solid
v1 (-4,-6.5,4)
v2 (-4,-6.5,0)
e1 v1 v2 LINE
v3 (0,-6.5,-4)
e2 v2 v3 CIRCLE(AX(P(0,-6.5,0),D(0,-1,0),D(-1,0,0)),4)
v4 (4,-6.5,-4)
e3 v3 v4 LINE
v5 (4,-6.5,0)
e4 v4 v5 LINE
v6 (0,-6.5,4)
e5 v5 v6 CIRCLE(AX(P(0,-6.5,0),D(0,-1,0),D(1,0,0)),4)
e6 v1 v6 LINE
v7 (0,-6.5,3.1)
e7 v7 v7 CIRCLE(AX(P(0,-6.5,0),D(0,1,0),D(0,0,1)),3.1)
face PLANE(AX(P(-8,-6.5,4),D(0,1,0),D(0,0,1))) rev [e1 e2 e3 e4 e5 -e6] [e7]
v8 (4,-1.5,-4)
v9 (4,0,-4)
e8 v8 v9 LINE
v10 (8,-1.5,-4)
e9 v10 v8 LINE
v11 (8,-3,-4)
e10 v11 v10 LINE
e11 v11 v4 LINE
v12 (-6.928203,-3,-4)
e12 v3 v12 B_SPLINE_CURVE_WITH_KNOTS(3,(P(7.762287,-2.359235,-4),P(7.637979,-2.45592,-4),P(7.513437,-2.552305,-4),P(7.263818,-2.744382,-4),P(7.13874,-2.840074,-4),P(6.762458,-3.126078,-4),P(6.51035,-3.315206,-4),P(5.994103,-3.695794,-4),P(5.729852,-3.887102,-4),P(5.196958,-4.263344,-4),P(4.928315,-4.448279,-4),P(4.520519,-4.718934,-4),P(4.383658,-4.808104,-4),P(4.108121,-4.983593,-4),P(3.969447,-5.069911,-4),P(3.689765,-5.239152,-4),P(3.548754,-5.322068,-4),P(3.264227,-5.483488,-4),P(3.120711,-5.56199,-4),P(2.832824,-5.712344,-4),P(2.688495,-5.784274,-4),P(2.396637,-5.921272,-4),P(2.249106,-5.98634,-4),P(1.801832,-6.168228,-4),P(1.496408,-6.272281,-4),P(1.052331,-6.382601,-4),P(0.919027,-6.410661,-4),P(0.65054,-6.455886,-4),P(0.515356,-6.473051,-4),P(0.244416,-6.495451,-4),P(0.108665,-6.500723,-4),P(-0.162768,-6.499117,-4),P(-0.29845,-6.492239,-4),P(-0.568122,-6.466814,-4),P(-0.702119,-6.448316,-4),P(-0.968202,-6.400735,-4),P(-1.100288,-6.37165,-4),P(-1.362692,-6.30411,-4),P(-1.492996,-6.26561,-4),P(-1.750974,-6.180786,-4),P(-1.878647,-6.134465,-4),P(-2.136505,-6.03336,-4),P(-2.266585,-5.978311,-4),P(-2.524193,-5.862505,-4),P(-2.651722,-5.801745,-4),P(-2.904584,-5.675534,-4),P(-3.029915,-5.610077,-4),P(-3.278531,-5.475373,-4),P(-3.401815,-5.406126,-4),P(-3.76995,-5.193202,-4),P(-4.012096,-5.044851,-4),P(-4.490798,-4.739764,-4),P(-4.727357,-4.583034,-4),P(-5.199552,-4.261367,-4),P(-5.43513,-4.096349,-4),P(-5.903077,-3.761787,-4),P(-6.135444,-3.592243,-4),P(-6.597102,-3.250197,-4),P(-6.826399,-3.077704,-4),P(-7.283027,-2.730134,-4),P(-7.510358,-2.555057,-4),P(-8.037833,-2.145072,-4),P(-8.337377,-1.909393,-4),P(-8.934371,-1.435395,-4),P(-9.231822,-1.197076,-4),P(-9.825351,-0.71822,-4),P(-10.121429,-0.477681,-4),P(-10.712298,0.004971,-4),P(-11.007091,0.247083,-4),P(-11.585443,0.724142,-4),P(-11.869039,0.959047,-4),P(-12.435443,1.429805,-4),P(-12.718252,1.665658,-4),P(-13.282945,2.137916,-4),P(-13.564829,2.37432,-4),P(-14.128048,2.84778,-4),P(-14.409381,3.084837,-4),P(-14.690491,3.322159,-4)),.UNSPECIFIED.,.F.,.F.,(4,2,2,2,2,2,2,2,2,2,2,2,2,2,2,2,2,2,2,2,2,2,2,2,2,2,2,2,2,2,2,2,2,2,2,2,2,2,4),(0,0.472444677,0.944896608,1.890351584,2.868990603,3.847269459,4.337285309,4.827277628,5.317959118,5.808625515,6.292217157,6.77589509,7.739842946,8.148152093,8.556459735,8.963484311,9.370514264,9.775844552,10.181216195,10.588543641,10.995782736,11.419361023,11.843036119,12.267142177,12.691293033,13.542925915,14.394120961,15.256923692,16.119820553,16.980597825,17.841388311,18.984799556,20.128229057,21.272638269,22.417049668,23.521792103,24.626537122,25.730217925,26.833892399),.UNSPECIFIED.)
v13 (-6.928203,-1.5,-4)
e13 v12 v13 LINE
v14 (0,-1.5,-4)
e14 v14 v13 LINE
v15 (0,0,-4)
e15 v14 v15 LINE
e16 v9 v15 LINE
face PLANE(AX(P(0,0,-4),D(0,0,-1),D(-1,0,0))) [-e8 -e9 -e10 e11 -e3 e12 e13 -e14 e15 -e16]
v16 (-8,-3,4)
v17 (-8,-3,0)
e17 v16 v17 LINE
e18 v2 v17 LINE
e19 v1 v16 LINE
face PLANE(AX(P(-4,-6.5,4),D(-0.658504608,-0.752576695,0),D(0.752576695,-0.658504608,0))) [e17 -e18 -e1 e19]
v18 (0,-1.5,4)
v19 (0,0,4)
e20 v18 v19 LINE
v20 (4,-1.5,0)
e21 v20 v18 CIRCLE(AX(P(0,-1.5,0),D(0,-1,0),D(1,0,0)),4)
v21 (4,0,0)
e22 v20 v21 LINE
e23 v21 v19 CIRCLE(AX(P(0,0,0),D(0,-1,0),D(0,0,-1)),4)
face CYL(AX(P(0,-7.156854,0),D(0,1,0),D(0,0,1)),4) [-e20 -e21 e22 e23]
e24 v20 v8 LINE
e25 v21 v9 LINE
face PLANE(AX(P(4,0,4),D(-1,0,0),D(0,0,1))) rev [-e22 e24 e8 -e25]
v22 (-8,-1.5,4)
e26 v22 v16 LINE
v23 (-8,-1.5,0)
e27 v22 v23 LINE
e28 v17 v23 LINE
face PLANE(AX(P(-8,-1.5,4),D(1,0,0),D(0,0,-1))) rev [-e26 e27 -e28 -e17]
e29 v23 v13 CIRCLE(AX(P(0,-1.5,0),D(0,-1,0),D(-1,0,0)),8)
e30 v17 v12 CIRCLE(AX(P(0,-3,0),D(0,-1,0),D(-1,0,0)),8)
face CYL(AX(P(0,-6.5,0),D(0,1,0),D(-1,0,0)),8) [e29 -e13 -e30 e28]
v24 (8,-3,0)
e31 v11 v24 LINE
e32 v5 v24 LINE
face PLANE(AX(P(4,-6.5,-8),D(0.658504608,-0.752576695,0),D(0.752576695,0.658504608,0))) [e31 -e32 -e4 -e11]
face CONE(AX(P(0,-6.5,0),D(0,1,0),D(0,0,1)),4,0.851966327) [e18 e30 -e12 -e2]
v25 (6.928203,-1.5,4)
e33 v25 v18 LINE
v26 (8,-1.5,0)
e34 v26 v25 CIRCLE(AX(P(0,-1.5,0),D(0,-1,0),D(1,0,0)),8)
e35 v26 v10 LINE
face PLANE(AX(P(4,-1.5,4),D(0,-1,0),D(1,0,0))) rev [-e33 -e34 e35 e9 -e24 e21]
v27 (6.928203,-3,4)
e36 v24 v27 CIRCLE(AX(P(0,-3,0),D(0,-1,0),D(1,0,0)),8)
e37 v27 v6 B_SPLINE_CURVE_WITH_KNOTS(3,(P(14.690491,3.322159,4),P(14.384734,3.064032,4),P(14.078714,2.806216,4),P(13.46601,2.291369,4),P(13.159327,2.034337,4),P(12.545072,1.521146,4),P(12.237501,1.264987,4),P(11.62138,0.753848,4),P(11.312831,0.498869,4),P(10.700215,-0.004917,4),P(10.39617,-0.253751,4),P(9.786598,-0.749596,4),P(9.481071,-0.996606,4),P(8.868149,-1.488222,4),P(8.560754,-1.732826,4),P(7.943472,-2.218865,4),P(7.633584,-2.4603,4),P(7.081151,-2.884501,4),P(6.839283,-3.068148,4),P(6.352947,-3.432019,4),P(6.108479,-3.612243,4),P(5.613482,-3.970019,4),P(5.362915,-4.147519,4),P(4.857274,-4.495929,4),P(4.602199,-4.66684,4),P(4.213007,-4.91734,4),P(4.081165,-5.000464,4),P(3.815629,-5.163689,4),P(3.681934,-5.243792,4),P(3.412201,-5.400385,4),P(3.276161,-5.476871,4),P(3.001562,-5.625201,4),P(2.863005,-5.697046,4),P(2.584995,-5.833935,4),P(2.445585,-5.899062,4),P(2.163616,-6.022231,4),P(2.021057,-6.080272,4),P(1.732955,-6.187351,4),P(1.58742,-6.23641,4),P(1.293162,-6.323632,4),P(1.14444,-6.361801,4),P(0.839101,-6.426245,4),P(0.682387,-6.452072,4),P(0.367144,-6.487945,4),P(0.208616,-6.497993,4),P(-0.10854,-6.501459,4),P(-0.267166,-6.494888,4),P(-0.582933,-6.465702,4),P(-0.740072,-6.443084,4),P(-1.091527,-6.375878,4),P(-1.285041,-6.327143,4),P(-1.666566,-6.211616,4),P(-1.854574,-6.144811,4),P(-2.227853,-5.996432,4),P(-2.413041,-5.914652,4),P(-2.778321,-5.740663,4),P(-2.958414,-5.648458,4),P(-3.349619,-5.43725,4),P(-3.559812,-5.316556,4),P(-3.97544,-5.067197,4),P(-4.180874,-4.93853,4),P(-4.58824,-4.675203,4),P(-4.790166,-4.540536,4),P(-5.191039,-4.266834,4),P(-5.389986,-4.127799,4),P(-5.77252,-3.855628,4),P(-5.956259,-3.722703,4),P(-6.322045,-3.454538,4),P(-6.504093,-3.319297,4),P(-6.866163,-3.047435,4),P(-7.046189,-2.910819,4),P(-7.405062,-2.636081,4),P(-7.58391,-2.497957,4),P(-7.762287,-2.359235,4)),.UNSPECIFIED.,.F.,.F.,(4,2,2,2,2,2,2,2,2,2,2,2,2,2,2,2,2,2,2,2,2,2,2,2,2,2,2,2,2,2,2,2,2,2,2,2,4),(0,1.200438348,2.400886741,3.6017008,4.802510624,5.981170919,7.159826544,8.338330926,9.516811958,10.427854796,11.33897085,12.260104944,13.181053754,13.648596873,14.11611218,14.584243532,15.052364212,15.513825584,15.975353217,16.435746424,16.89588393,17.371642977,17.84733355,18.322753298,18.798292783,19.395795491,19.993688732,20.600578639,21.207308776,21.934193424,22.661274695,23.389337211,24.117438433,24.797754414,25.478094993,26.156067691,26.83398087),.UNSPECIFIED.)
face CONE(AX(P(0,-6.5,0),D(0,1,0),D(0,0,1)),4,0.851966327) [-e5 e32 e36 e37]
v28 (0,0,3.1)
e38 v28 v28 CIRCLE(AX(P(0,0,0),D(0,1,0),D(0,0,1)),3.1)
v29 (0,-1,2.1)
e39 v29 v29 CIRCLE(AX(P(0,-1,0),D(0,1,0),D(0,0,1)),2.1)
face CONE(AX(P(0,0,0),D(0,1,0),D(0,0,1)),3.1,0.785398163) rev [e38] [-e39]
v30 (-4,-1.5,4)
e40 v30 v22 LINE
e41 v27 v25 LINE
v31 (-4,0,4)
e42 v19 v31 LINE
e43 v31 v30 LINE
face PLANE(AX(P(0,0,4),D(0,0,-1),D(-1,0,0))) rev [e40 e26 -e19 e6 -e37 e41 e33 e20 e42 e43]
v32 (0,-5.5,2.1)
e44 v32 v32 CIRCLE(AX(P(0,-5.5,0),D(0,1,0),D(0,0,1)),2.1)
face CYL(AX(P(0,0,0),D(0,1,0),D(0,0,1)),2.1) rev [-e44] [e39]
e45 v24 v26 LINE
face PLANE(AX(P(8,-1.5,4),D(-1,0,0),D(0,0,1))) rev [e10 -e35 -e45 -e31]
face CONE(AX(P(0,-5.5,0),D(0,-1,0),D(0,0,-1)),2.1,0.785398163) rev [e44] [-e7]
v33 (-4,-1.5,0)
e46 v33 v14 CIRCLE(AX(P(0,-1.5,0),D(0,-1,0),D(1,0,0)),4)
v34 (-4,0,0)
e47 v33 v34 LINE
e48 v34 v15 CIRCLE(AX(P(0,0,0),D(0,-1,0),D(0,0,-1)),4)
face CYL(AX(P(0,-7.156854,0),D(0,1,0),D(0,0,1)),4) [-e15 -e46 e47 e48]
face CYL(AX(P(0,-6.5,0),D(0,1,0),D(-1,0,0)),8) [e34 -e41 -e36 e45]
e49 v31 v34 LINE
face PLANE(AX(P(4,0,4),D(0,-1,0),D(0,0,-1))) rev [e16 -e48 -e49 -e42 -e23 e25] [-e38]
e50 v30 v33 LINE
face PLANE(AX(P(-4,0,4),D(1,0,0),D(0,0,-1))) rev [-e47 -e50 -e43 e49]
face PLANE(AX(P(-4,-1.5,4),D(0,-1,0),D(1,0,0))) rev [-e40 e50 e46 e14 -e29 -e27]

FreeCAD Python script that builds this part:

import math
import FreeCAD as App
import Part
import Sketcher
from FreeCAD import Vector

doc = App.newDocument("Part")
body = doc.addObject("PartDesign::Body", "Body")

# Sketch on XY plane
sketch1 = body.newObject("Sketcher::SketchObject", "Sketch")
sketch1.AttachmentSupport = (doc.getObject("XY_Plane"), [""])
sketch1.MapMode = "FlatFace"
sketch1.addGeometry([
    Part.LineSegment(Vector(4, 0, 0), Vector(-4, 0, 0)),  # 0
    Part.LineSegment(Vector(-4, 0, 0), Vector(-4, -1.5, 0)),  # 1
    Part.LineSegment(Vector(-4, -1.5, 0), Vector(-8, -1.5, 0)),  # 2
    Part.LineSegment(Vector(-8, -1.5, 0), Vector(-8, -6.5, 0)),  # 3
    Part.LineSegment(Vector(-8, -6.5, 0), Vector(8, -6.5, 0)),  # 4
    Part.LineSegment(Vector(8, -6.5, 0), Vector(8, -1.5, 0)),  # 5
    Part.LineSegment(Vector(8, -1.5, 0), Vector(4, -1.5, 0)),  # 6
    Part.LineSegment(Vector(4, -1.5, 0), Vector(4, 0, 0)),  # 7
], False)
sketch1.addConstraint([
    Sketcher.Constraint("Coincident", 0, 2, 1, 1),
    Sketcher.Constraint("Coincident", 1, 2, 2, 1),
    Sketcher.Constraint("Coincident", 2, 2, 3, 1),
    Sketcher.Constraint("Coincident", 3, 2, 4, 1),
    Sketcher.Constraint("Coincident", 4, 2, 5, 1),
    Sketcher.Constraint("Coincident", 5, 2, 6, 1),
    Sketcher.Constraint("Coincident", 6, 2, 7, 1),
    Sketcher.Constraint("Coincident", 7, 2, 0, 1),
    Sketcher.Constraint("Horizontal", 0),
    Sketcher.Constraint("Vertical", 1),
    Sketcher.Constraint("Horizontal", 2),
    Sketcher.Constraint("Vertical", 3),
    Sketcher.Constraint("Horizontal", 4),
    Sketcher.Constraint("Vertical", 5),
    Sketcher.Constraint("Horizontal", 6),
    Sketcher.Constraint("Vertical", 7),
    Sketcher.Constraint("Symmetric", 0, 2, 7, 2, -1, 1),
    Sketcher.Constraint("Symmetric", 2, 2, 5, 2, -2),
    Sketcher.Constraint("DistanceX", 0, 2, 0, 1, 8.0),
    Sketcher.Constraint("DistanceX", 2, 2, 2, 1, 4.0),
    Sketcher.Constraint("DistanceY", 3, 2, 3, 1, 5.0),
    Sketcher.Constraint("DistanceY", 1, 2, 1, 1, 1.5),
])
pad1 = body.newObject("PartDesign::Pad", "Pad")
pad1.Profile = sketch1
pad1.Length = 8
pad1.Midplane = True

# Sketch on YZ plane
sketch2 = body.newObject("Sketcher::SketchObject", "Sketch001")
sketch2.AttachmentSupport = (doc.getObject("YZ_Plane"), [""])
sketch2.MapMode = "FlatFace"
sketch2.addGeometry([
    Part.LineSegment(Vector(-6.5, 0, 0), Vector(0, 0, 0)),  # 0
    Part.LineSegment(Vector(0, 0, 0), Vector(0, 3.1, 0)),  # 1
    Part.LineSegment(Vector(0, 3.1, 0), Vector(-1, 2.1, 0)),  # 2
    Part.LineSegment(Vector(-1, 2.1, 0), Vector(-5.5, 2.1, 0)),  # 3
    Part.LineSegment(Vector(-5.5, 2.1, 0), Vector(-6.5, 3.1, 0)),  # 4
    Part.LineSegment(Vector(-6.5, 3.1, 0), Vector(-6.5, 0, 0)),  # 5
], False)
sketch2.addConstraint([
    Sketcher.Constraint("Coincident", 0, 2, 1, 1),
    Sketcher.Constraint("Coincident", 1, 2, 2, 1),
    Sketcher.Constraint("Coincident", 2, 2, 3, 1),
    Sketcher.Constraint("Coincident", 3, 2, 4, 1),
    Sketcher.Constraint("Coincident", 4, 2, 5, 1),
    Sketcher.Constraint("Coincident", 5, 2, 0, 1),
    Sketcher.Constraint("Horizontal", 0),
    Sketcher.Constraint("Vertical", 1),
    Sketcher.Constraint("Horizontal", 3),
    Sketcher.Constraint("Vertical", 5),
    Sketcher.Constraint("Coincident", 0, 2, -1, 1),
    Sketcher.Constraint("Perpendicular", 2, 4),
    Sketcher.Constraint("Horizontal", 1, 2, 4, 2),
    Sketcher.Constraint("Equal", 2, 4),
    Sketcher.Constraint("DistanceX", 0, 1, 0, 2, 6.5),
    Sketcher.Constraint("DistanceX", 3, 2, 3, 1, 4.5),
    Sketcher.Constraint("DistanceY", 1, 1, 1, 2, 3.1),
])
groove = body.newObject("PartDesign::Groove", "Groove")
groove.Profile = sketch2
groove.ReferenceAxis = (sketch2, ["H_Axis"])
groove.Angle = 360

# Sketch on XZ plane
sketch3 = body.newObject("Sketcher::SketchObject", "Sketch002")
sketch3.AttachmentSupport = (doc.getObject("XZ_Plane"), [""])
sketch3.MapMode = "FlatFace"
sketch3.addGeometry([
    Part.LineSegment(Vector(-4, -4, 0), Vector(-4, 0, 0)),  # 0
    Part.ArcOfCircle(Part.Circle(Vector(0, 0, 0), Vector(0, 0, 1), 4), math.radians(180), math.radians(270)),  # 1
    Part.LineSegment(Vector(0, -4, 0), Vector(-4, -4, 0)),  # 2
    Part.LineSegment(Vector(0, 4, 0), Vector(4, 4, 0)),  # 3
    Part.LineSegment(Vector(4, 4, 0), Vector(4, 0, 0)),  # 4
    Part.ArcOfCircle(Part.Circle(Vector(0, 0, 0), Vector(0, 0, 1), 4), math.radians(0), math.radians(90)),  # 5
], False)
sketch3.addConstraint([
    Sketcher.Constraint("Tangent", 0, 2, 1, 1),
    Sketcher.Constraint("Tangent", 1, 2, 2, 1),
    Sketcher.Constraint("Coincident", 2, 2, 0, 1),
    Sketcher.Constraint("Coincident", 3, 2, 4, 1),
    Sketcher.Constraint("Tangent", 4, 2, 5, 1),
    Sketcher.Constraint("Tangent", 5, 2, 3, 1),
    Sketcher.Constraint("Vertical", 0),
    Sketcher.Constraint("Horizontal", 2),
    Sketcher.Constraint("Horizontal", 3),
    Sketcher.Constraint("Vertical", 4),
    Sketcher.Constraint("Coincident", 1, 3, -1, 1),
    Sketcher.Constraint("Coincident", 5, 3, -1, 1),
    Sketcher.Constraint("Equal", 1, 5),
    Sketcher.Constraint("Radius", 1, 4.0),
])
pocket1 = body.newObject("PartDesign::Pocket", "Pocket")
pocket1.Profile = sketch3
pocket1.Length = 1.5
pocket1.Reversed = True

# Sketch on XZ plane
sketch4 = body.newObject("Sketcher::SketchObject", "Sketch003")
sketch4.AttachmentSupport = (doc.getObject("XZ_Plane"), [""])
sketch4.MapMode = "FlatFace"
sketch4.AttachmentOffset = App.Placement(Vector(0, 0, 1.5), App.Rotation())
sketch4.addGeometry([
    Part.LineSegment(Vector(-8, -4, 0), Vector(-8, 0, 0)),  # 0
    Part.ArcOfCircle(Part.Circle(Vector(0, 0, 0), Vector(0, 0, 1), 8), math.radians(-180), math.radians(-150)),  # 1
    Part.LineSegment(Vector(-6.928203, -4, 0), Vector(-8, -4, 0)),  # 2
    Part.LineSegment(Vector(8, 4, 0), Vector(8, 0, 0)),  # 3
    Part.ArcOfCircle(Part.Circle(Vector(0, 0, 0), Vector(0, 0, 1), 8), math.radians(0), math.radians(30)),  # 4
    Part.LineSegment(Vector(6.928203, 4, 0), Vector(8, 4, 0)),  # 5
], False)
sketch4.addConstraint([
    Sketcher.Constraint("Tangent", 0, 2, 1, 1),
    Sketcher.Constraint("Coincident", 1, 2, 2, 1),
    Sketcher.Constraint("Coincident", 2, 2, 0, 1),
    Sketcher.Constraint("Tangent", 3, 2, 4, 1),
    Sketcher.Constraint("Coincident", 4, 2, 5, 1),
    Sketcher.Constraint("Coincident", 5, 2, 3, 1),
    Sketcher.Constraint("Vertical", 0),
    Sketcher.Constraint("Horizontal", 2),
    Sketcher.Constraint("Vertical", 3),
    Sketcher.Constraint("Horizontal", 5),
    Sketcher.Constraint("Coincident", 1, 3, -1, 1),
    Sketcher.Constraint("Coincident", 4, 3, -1, 1),
    Sketcher.Constraint("Equal", 1, 4),
    Sketcher.Constraint("Equal", 2, 5),
    Sketcher.Constraint("Radius", 1, 8.0),
    Sketcher.Constraint("DistanceY", 0, 1, 0, 2, 4.0),
])
pocket2 = body.newObject("PartDesign::Pocket", "Pocket001")
pocket2.Profile = sketch4
pocket2.Type = "ThroughAll"
pocket2.Reversed = True

# Sketch on XY plane
sketch5 = body.newObject("Sketcher::SketchObject", "Sketch004")
sketch5.AttachmentSupport = (doc.getObject("XY_Plane"), [""])
sketch5.MapMode = "FlatFace"
sketch5.AttachmentOffset = App.Placement(Vector(0, 0, 4), App.Rotation())
sketch5.addGeometry([
    Part.LineSegment(Vector(-8, -3, 0), Vector(-8, -6.5, 0)),
    Part.LineSegment(Vector(-8, -6.5, 0), Vector(-4, -6.5, 0)),
    Part.LineSegment(Vector(-4, -6.5, 0), Vector(-8, -3, 0)),
], False)
sketch5.addConstraint([
    Sketcher.Constraint("Coincident", 0, 2, 1, 1),
    Sketcher.Constraint("Coincident", 1, 2, 2, 1),
    Sketcher.Constraint("Coincident", 2, 2, 0, 1),
    Sketcher.Constraint("Vertical", 0),
    Sketcher.Constraint("Horizontal", 1),
    Sketcher.Constraint("DistanceX", 1, 1, 1, 2, 4.0),
    Sketcher.Constraint("DistanceY", 0, 2, 0, 1, 3.5),
    Sketcher.Constraint("DistanceX", 0, 2, -1, 1, 8.0),
    Sketcher.Constraint("DistanceY", 2, 2, -1, 1, 3.0),
])

# Sketch on XZ plane
sketch6 = body.newObject("Sketcher::SketchObject", "Sketch005")
sketch6.AttachmentSupport = (doc.getObject("XZ_Plane"), [""])
sketch6.MapMode = "FlatFace"
sketch6.AttachmentOffset = App.Placement(Vector(0, 0, 6.5), App.Rotation())
sketch6.addGeometry([
    Part.LineSegment(Vector(0, 8, 0), Vector(-8, 8, 0)),  # 0
    Part.LineSegment(Vector(-8, 8, 0), Vector(-8, 0, 0)),  # 1
    Part.ArcOfCircle(Part.Circle(Vector(0, 0, 0), Vector(0, 0, 1), 8), math.radians(-180), math.radians(-90)),  # 2
    Part.LineSegment(Vector(0, -8, 0), Vector(8, -8, 0)),  # 3
    Part.LineSegment(Vector(8, -8, 0), Vector(8, 0, 0)),  # 4
    Part.ArcOfCircle(Part.Circle(Vector(0, 0, 0), Vector(0, 0, 1), 8), math.radians(0), math.radians(90)),  # 5
], False)
sketch6.addConstraint([
    Sketcher.Constraint("Coincident", 0, 2, 1, 1),
    Sketcher.Constraint("Tangent", 1, 2, 2, 1),
    Sketcher.Constraint("Tangent", 2, 2, 3, 1),
    Sketcher.Constraint("Coincident", 3, 2, 4, 1),
    Sketcher.Constraint("Tangent", 4, 2, 5, 1),
    Sketcher.Constraint("Tangent", 5, 2, 0, 1),
    Sketcher.Constraint("Horizontal", 0),
    Sketcher.Constraint("Vertical", 1),
    Sketcher.Constraint("Horizontal", 3),
    Sketcher.Constraint("Vertical", 4),
    Sketcher.Constraint("Coincident", 2, 3, -1, 1),
    Sketcher.Constraint("Coincident", 5, 3, -1, 1),
    Sketcher.Constraint("Equal", 2, 5),
    Sketcher.Constraint("Radius", 2, 8.0),
])
doc.recompute()

subtractivepipe = body.newObject("PartDesign::SubtractivePipe", "SubtractivePipe")
subtractivepipe.Profile = sketch5
subtractivepipe.Spine = (sketch6, ["Edge1", "Edge2", "Edge3", "Edge4", "Edge5", "Edge6"])
subtractivepipe.Transition = "Right corner"

doc.recompute()
